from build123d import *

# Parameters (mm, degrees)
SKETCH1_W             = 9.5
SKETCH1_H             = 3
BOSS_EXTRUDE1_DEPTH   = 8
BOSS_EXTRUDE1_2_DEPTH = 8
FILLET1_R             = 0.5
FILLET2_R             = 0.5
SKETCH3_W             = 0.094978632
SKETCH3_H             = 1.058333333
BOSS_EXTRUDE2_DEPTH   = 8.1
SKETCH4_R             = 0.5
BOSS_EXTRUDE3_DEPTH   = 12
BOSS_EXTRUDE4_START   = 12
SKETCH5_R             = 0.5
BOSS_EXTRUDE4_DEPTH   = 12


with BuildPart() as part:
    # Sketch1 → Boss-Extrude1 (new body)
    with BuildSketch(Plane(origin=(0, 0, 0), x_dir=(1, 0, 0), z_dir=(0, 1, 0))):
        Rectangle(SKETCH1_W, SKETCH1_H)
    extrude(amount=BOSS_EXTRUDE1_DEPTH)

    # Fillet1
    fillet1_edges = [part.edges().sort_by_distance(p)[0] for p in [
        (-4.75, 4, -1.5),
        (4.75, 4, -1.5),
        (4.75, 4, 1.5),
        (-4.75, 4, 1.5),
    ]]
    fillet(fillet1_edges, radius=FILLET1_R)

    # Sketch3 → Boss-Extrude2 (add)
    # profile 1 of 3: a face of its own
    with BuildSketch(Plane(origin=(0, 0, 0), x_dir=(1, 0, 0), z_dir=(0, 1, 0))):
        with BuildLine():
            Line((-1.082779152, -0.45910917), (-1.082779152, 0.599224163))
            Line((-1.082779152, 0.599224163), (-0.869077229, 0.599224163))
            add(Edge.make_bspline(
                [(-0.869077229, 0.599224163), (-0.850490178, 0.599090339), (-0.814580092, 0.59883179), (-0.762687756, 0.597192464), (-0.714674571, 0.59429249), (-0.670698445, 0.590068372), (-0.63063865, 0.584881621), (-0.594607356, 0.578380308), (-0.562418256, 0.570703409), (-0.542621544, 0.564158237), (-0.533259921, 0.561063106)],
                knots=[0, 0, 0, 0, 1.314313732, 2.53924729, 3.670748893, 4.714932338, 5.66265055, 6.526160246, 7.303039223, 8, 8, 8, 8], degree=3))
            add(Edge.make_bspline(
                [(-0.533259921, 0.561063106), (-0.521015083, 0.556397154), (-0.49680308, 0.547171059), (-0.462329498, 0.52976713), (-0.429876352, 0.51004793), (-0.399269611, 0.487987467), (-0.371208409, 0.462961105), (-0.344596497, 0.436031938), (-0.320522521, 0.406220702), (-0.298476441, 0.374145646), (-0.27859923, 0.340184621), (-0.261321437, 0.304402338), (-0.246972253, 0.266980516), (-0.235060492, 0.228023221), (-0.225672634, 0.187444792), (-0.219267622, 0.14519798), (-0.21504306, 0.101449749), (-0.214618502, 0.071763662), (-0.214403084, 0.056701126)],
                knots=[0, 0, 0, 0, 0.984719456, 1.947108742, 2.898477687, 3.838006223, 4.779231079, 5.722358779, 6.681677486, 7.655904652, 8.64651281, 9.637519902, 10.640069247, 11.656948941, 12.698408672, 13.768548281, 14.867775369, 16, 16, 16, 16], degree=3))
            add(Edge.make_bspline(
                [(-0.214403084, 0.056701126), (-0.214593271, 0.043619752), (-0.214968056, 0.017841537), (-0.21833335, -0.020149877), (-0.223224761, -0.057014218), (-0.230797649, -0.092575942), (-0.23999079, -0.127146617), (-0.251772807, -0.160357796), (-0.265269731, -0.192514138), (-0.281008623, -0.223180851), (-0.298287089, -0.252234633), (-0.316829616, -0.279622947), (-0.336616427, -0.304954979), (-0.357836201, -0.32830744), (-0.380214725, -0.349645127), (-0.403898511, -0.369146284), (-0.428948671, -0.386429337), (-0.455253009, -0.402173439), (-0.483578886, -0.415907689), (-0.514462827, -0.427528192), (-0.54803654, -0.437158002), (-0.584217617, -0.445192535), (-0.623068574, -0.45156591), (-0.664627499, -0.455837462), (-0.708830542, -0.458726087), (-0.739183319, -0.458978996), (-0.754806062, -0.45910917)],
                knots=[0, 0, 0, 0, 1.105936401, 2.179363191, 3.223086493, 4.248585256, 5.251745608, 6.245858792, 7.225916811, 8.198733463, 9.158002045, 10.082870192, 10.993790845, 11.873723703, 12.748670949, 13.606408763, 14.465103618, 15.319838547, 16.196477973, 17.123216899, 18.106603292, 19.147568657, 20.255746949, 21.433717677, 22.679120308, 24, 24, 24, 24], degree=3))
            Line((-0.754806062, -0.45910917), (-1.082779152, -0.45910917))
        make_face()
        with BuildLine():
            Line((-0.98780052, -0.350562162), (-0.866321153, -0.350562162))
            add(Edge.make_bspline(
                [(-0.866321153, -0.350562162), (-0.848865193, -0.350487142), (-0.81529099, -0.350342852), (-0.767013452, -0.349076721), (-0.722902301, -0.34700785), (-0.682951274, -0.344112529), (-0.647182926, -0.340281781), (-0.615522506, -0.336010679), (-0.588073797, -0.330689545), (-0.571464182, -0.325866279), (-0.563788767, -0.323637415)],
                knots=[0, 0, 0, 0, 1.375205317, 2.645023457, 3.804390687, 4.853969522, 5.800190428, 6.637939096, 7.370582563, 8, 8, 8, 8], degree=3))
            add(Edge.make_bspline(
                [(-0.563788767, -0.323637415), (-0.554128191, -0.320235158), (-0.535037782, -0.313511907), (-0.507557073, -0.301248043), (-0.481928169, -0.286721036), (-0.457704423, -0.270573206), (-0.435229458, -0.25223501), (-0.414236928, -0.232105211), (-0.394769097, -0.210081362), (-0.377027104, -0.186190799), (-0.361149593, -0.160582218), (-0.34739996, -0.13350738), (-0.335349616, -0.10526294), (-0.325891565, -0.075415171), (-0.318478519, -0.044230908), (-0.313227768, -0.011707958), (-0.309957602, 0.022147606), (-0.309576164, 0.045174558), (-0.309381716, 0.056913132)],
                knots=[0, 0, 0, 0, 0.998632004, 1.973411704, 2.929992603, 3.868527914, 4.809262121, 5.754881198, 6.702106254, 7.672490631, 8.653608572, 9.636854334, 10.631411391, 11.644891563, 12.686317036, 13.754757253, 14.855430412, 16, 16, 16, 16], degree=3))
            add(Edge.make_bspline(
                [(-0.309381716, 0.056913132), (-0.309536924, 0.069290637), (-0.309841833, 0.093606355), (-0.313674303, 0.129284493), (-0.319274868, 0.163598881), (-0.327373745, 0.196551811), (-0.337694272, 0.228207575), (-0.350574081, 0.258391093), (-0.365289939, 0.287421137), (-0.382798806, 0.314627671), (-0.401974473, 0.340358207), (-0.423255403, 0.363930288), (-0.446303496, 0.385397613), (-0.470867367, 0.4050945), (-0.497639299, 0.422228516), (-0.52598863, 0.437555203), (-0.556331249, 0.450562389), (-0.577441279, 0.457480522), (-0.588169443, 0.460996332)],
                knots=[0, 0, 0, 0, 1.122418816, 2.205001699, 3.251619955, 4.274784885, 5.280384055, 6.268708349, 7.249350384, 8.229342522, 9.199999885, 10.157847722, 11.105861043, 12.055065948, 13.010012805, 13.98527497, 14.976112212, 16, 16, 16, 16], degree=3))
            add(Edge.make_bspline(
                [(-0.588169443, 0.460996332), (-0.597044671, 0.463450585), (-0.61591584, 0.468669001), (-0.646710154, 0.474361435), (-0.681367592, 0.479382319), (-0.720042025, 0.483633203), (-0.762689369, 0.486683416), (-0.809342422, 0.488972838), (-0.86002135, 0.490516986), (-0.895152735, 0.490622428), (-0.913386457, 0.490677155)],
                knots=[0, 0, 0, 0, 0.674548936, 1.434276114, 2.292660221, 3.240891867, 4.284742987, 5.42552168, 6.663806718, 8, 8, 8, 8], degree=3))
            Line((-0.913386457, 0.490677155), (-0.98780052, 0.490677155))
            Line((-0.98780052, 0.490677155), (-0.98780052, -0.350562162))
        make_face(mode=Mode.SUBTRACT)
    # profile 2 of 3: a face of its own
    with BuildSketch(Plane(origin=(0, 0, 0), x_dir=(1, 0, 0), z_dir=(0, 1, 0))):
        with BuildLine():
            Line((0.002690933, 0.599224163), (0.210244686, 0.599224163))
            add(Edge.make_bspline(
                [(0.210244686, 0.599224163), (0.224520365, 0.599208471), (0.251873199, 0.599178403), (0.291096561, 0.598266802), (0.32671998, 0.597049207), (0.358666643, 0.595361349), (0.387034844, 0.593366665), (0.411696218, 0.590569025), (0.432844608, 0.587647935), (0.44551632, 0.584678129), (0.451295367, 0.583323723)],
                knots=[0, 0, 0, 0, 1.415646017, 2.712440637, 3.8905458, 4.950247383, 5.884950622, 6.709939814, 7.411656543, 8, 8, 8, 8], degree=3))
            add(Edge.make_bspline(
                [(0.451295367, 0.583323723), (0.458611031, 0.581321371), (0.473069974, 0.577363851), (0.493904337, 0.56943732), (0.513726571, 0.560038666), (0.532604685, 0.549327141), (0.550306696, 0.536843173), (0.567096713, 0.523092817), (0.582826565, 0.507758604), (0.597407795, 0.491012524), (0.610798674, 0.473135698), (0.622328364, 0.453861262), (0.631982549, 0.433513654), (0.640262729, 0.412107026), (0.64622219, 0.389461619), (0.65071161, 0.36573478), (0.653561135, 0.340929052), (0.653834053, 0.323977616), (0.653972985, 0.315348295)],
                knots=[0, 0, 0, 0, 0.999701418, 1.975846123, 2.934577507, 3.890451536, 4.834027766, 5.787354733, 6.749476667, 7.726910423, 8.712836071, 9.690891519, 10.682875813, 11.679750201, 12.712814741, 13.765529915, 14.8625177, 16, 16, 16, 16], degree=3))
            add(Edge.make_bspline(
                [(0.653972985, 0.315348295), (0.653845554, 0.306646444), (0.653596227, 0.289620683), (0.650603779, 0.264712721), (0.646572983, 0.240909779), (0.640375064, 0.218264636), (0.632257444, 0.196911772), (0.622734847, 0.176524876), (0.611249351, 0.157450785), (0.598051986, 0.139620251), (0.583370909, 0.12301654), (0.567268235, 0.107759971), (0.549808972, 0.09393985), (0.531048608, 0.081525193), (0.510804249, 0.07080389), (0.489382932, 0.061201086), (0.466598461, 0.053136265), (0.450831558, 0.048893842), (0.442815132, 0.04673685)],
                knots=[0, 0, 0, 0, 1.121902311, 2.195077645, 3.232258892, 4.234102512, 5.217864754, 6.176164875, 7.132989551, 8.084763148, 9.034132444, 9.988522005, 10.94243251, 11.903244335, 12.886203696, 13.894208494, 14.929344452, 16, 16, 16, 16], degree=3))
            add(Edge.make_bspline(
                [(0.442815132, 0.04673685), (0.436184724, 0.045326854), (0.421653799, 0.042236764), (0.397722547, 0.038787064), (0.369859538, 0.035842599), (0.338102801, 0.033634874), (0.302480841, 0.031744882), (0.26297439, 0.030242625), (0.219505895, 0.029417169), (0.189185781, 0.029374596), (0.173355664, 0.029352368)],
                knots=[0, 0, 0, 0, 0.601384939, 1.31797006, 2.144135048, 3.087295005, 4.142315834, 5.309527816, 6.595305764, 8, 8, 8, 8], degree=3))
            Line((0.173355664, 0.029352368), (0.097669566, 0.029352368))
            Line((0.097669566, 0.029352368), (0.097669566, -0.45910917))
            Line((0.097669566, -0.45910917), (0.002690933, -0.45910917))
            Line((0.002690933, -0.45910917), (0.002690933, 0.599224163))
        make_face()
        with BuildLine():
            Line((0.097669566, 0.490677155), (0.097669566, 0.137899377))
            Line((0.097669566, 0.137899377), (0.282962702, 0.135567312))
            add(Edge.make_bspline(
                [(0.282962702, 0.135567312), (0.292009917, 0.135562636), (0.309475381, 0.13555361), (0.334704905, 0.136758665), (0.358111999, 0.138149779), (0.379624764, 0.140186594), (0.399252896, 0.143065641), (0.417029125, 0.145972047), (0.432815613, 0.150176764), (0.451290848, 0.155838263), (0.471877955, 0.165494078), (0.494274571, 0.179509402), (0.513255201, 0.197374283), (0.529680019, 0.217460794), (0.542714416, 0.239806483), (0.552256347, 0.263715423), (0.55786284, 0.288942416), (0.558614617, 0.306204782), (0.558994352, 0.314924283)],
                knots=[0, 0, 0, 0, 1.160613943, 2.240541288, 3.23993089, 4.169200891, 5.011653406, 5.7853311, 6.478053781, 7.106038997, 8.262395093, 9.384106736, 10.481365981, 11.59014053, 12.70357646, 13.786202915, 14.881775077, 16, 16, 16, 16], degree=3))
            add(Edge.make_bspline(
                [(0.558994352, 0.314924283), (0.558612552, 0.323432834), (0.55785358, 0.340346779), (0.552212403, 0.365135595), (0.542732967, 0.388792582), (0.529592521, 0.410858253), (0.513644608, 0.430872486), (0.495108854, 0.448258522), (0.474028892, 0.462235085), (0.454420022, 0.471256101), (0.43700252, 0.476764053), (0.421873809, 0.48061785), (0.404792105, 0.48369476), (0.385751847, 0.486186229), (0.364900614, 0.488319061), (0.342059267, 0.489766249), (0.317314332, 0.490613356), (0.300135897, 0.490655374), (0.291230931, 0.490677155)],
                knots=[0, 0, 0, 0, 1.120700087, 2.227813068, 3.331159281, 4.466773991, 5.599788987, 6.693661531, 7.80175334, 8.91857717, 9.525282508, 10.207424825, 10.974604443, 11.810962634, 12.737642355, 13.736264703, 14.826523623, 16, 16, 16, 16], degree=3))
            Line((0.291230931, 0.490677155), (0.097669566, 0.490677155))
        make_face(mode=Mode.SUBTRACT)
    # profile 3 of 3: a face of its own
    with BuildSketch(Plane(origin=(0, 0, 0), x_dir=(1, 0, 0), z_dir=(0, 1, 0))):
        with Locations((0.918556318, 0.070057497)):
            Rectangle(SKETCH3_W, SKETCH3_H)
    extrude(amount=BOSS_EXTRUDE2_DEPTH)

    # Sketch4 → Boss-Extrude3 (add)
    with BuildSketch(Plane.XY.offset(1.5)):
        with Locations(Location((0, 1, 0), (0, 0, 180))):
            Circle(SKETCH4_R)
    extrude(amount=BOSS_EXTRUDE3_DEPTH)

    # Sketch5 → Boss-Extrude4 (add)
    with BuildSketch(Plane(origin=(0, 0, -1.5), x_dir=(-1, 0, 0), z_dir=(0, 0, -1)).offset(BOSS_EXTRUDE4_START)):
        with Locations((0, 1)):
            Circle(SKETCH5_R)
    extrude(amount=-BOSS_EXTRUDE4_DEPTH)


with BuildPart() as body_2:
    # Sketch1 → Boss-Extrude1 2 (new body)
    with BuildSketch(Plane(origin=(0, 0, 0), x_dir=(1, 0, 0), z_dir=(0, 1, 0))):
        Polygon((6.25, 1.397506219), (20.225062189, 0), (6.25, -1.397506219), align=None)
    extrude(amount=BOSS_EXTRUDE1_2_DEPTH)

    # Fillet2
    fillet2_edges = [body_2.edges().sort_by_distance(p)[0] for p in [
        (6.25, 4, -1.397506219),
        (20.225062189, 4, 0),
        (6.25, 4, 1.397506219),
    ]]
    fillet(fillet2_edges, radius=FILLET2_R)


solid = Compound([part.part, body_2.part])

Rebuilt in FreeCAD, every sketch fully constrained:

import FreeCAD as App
import Part
import Sketcher

V = App.Vector


def edges_at(feature, points):
    """Names of the edges that pass closest to the given points."""
    edges = feature.Shape.Edges
    near = lambda p: min(range(len(edges)), key=lambda i: edges[i].distToShape(Part.Vertex(*p))[0])
    return sorted({f"Edge{near(p) + 1}" for p in points})


def add_polygon(sketch, points):
    """Adds a closed chain of lines whose ends are joined by coincident constraints."""
    first, n = sketch.GeometryCount, len(points)
    for a, b in zip(points, points[1:] + points[:1]):
        sketch.addGeometry(Part.LineSegment(App.Vector(*a, 0), App.Vector(*b, 0)), False)
    for i in range(n):
        sketch.addConstraint(Sketcher.Constraint("Coincident", first + i, 2, first + (i + 1) % n, 1))

doc = App.newDocument("Part")
body = doc.addObject("PartDesign::Body", "Body")

# Sketch on XZ plane
sketch1 = doc.addObject("Sketcher::SketchObject", "Sketch")
body.addObject(sketch1)
sketch1.AttachmentSupport = (doc.XZ_Plane, [""])
sketch1.MapMode = "FlatFace"
add_polygon(sketch1, [(-4.8, -1.5), (-4.8, 1.5), (4.8, 1.5), (4.8, -1.5)])  # lines 0-3
sketch1.addConstraint([
    Sketcher.Constraint("Vertical", 0),
    Sketcher.Constraint("Horizontal", 1),
    Sketcher.Constraint("Vertical", 2),
    Sketcher.Constraint("Horizontal", 3),
    Sketcher.Constraint("Symmetric", 0, 2, 2, 2, -1, 1),
    Sketcher.Constraint("DistanceY", 0, 1, 0, 2, 3.0),
    Sketcher.Constraint("DistanceX", 1, 1, 1, 2, 9.5),
])
pad1 = doc.addObject("PartDesign::Pad", "Pad")
body.addObject(pad1)
pad1.Profile = sketch1
pad1.Length = 8
pad1.Reversed = True
doc.recompute()

fillet = doc.addObject("PartDesign::Fillet", "Fillet")
body.addObject(fillet)
fillet.Base = (pad1, edges_at(pad1, [
    (-4.75, 4, -1.5),
    (4.75, 4, -1.5),
    (4.75, 4, 1.5),
    (-4.75, 4, 1.5),
]))
fillet.Radius = 0.5

# Sketch on XZ plane
sketch2 = doc.addObject("Sketcher::SketchObject", "Sketch001")
body.addObject(sketch2)
sketch2.AttachmentSupport = (doc.XZ_Plane, [""])
sketch2.MapMode = "FlatFace"
sketch2.addGeometry(Part.LineSegment(V(-1.082779, -0.599224, 0), V(-1.082779, 0.459109, 0)), False)  # 0
sketch2.addGeometry(Part.LineSegment(V(-1.082779, 0.459109, 0), V(-0.754806, 0.459109, 0)), False)  # 1
sketch2.addGeometry(Part.BSplineCurve([V(-0.214403, -0.056701, 0), V(-0.214593, -0.04362, 0), V(-0.214968, -0.017842, 0), V(-0.218333, 0.02015, 0), V(-0.223225, 0.057014, 0), V(-0.230798, 0.092576, 0), V(-0.239991, 0.127147, 0), V(-0.251773, 0.160358, 0), V(-0.26527, 0.192514, 0), V(-0.281009, 0.223181, 0), V(-0.298287, 0.252235, 0), V(-0.31683, 0.279623, 0), V(-0.336616, 0.304955, 0), V(-0.357836, 0.328307, 0), V(-0.380215, 0.349645, 0), V(-0.403899, 0.369146, 0), V(-0.428949, 0.386429, 0), V(-0.455253, 0.402173, 0), V(-0.483579, 0.415908, 0), V(-0.514463, 0.427528, 0), V(-0.548037, 0.437158, 0), V(-0.584218, 0.445193, 0), V(-0.623069, 0.451566, 0), V(-0.664627, 0.455837, 0), V(-0.708831, 0.458726, 0), V(-0.739183, 0.458979, 0), V(-0.754806, 0.459109, 0)], [4, 1, 1, 1, 1, 1, 1, 1, 1, 1, 1, 1, 1, 1, 1, 1, 1, 1, 1, 1, 1, 1, 1, 1, 4], [0, 1.105936401, 2.179363191, 3.223086493, 4.248585256, 5.251745608, 6.245858792, 7.225916811, 8.198733463, 9.158002045, 10.082870192, 10.993790845, 11.873723703, 12.748670949, 13.606408763, 14.465103618, 15.319838547, 16.196477973, 17.123216899, 18.106603292, 19.147568657, 20.255746949, 21.433717677, 22.679120308, 24], False, 3, [1, 1, 1, 1, 1, 1, 1, 1, 1, 1, 1, 1, 1, 1, 1, 1, 1, 1, 1, 1, 1, 1, 1, 1, 1, 1, 1], False), False)  # 2
sketch2.addGeometry(Part.BSplineCurve([V(-0.53326, -0.561063, 0), V(-0.521015, -0.556397, 0), V(-0.496803, -0.547171, 0), V(-0.462329, -0.529767, 0), V(-0.429876, -0.510048, 0), V(-0.39927, -0.487987, 0), V(-0.371208, -0.462961, 0), V(-0.344596, -0.436032, 0), V(-0.320523, -0.406221, 0), V(-0.298476, -0.374146, 0), V(-0.278599, -0.340185, 0), V(-0.261321, -0.304402, 0), V(-0.246972, -0.266981, 0), V(-0.23506, -0.228023, 0), V(-0.225673, -0.187445, 0), V(-0.219268, -0.145198, 0), V(-0.215043, -0.10145, 0), V(-0.214619, -0.071764, 0), V(-0.214403, -0.056701, 0)], [4, 1, 1, 1, 1, 1, 1, 1, 1, 1, 1, 1, 1, 1, 1, 1, 4], [0, 0.984719456, 1.947108742, 2.898477687, 3.838006223, 4.779231079, 5.722358779, 6.681677486, 7.655904652, 8.64651281, 9.637519902, 10.640069247, 11.656948941, 12.698408672, 13.768548281, 14.867775369, 16], False, 3, [1, 1, 1, 1, 1, 1, 1, 1, 1, 1, 1, 1, 1, 1, 1, 1, 1, 1, 1], False), False)  # 3
sketch2.addGeometry(Part.BSplineCurve([V(-0.869077, -0.599224, 0), V(-0.85049, -0.59909, 0), V(-0.81458, -0.598832, 0), V(-0.762688, -0.597192, 0), V(-0.714675, -0.594292, 0), V(-0.670698, -0.590068, 0), V(-0.630639, -0.584882, 0), V(-0.594607, -0.57838, 0), V(-0.562418, -0.570703, 0), V(-0.542622, -0.564158, 0), V(-0.53326, -0.561063, 0)], [4, 1, 1, 1, 1, 1, 1, 1, 4], [0, 1.314313732, 2.53924729, 3.670748893, 4.714932338, 5.66265055, 6.526160246, 7.303039223, 8], False, 3, [1, 1, 1, 1, 1, 1, 1, 1, 1, 1, 1], False), False)  # 4
sketch2.addGeometry(Part.LineSegment(V(-0.869077, -0.599224, 0), V(-1.082779, -0.599224, 0)), False)  # 5
sketch2.addGeometry(Part.LineSegment(V(-0.987801, 0.350562, 0), V(-0.987801, -0.490677, 0)), False)  # 6
sketch2.addGeometry(Part.LineSegment(V(-0.987801, -0.490677, 0), V(-0.913386, -0.490677, 0)), False)  # 7
sketch2.addGeometry(Part.BSplineCurve([V(-0.588169, -0.460996, 0), V(-0.597045, -0.463451, 0), V(-0.615916, -0.468669, 0), V(-0.64671, -0.474361, 0), V(-0.681368, -0.479382, 0), V(-0.720042, -0.483633, 0), V(-0.762689, -0.486683, 0), V(-0.809342, -0.488973, 0), V(-0.860021, -0.490517, 0), V(-0.895153, -0.490622, 0), V(-0.913386, -0.490677, 0)], [4, 1, 1, 1, 1, 1, 1, 1, 4], [0, 0.674548936, 1.434276114, 2.292660221, 3.240891867, 4.284742987, 5.42552168, 6.663806718, 8], False, 3, [1, 1, 1, 1, 1, 1, 1, 1, 1, 1, 1], False), False)  # 8
sketch2.addGeometry(Part.BSplineCurve([V(-0.309382, -0.056913, 0), V(-0.309537, -0.069291, 0), V(-0.309842, -0.093606, 0), V(-0.313674, -0.129284, 0), V(-0.319275, -0.163599, 0), V(-0.327374, -0.196552, 0), V(-0.337694, -0.228208, 0), V(-0.350574, -0.258391, 0), V(-0.36529, -0.287421, 0), V(-0.382799, -0.314628, 0), V(-0.401974, -0.340358, 0), V(-0.423255, -0.36393, 0), V(-0.446303, -0.385398, 0), V(-0.470867, -0.405095, 0), V(-0.497639, -0.422229, 0), V(-0.525989, -0.437555, 0), V(-0.556331, -0.450562, 0), V(-0.577441, -0.457481, 0), V(-0.588169, -0.460996, 0)], [4, 1, 1, 1, 1, 1, 1, 1, 1, 1, 1, 1, 1, 1, 1, 1, 4], [0, 1.122418816, 2.205001699, 3.251619955, 4.274784885, 5.280384055, 6.268708349, 7.249350384, 8.229342522, 9.199999885, 10.157847722, 11.105861043, 12.055065948, 13.010012805, 13.98527497, 14.976112212, 16], False, 3, [1, 1, 1, 1, 1, 1, 1, 1, 1, 1, 1, 1, 1, 1, 1, 1, 1, 1, 1], False), False)  # 9
sketch2.addGeometry(Part.BSplineCurve([V(-0.563789, 0.323637, 0), V(-0.554128, 0.320235, 0), V(-0.535038, 0.313512, 0), V(-0.507557, 0.301248, 0), V(-0.481928, 0.286721, 0), V(-0.457704, 0.270573, 0), V(-0.435229, 0.252235, 0), V(-0.414237, 0.232105, 0), V(-0.394769, 0.210081, 0), V(-0.377027, 0.186191, 0), V(-0.36115, 0.160582, 0), V(-0.3474, 0.133507, 0), V(-0.33535, 0.105263, 0), V(-0.325892, 0.075415, 0), V(-0.318479, 0.044231, 0), V(-0.313228, 0.011708, 0), V(-0.309958, -0.022148, 0), V(-0.309576, -0.045175, 0), V(-0.309382, -0.056913, 0)], [4, 1, 1, 1, 1, 1, 1, 1, 1, 1, 1, 1, 1, 1, 1, 1, 4], [0, 0.998632004, 1.973411704, 2.929992603, 3.868527914, 4.809262121, 5.754881198, 6.702106254, 7.672490631, 8.653608572, 9.636854334, 10.631411391, 11.644891563, 12.686317036, 13.754757253, 14.855430412, 16], False, 3, [1, 1, 1, 1, 1, 1, 1, 1, 1, 1, 1, 1, 1, 1, 1, 1, 1, 1, 1], False), False)  # 10
sketch2.addGeometry(Part.BSplineCurve([V(-0.866321, 0.350562, 0), V(-0.848865, 0.350487, 0), V(-0.815291, 0.350343, 0), V(-0.767013, 0.349077, 0), V(-0.722902, 0.347008, 0), V(-0.682951, 0.344113, 0), V(-0.647183, 0.340282, 0), V(-0.615523, 0.336011, 0), V(-0.588074, 0.33069, 0), V(-0.571464, 0.325866, 0), V(-0.563789, 0.323637, 0)], [4, 1, 1, 1, 1, 1, 1, 1, 4], [0, 1.375205317, 2.645023457, 3.804390687, 4.853969522, 5.800190428, 6.637939096, 7.370582563, 8], False, 3, [1, 1, 1, 1, 1, 1, 1, 1, 1, 1, 1], False), False)  # 11
sketch2.addGeometry(Part.LineSegment(V(-0.866321, 0.350562, 0), V(-0.987801, 0.350562, 0)), False)  # 12
sketch2.addGeometry(Part.LineSegment(V(0.210245, -0.599224, 0), V(0.002691, -0.599224, 0)), False)  # 13
sketch2.addGeometry(Part.LineSegment(V(0.002691, -0.599224, 0), V(0.002691, 0.459109, 0)), False)  # 14
sketch2.addGeometry(Part.LineSegment(V(0.002691, 0.459109, 0), V(0.09767, 0.459109, 0)), False)  # 15
sketch2.addGeometry(Part.LineSegment(V(0.09767, 0.459109, 0), V(0.09767, -0.029352, 0)), False)  # 16
sketch2.addGeometry(Part.LineSegment(V(0.09767, -0.029352, 0), V(0.173356, -0.029352, 0)), False)  # 17
sketch2.addGeometry(Part.BSplineCurve([V(0.442815, -0.046737, 0), V(0.436185, -0.045327, 0), V(0.421654, -0.042237, 0), V(0.397723, -0.038787, 0), V(0.36986, -0.035843, 0), V(0.338103, -0.033635, 0), V(0.302481, -0.031745, 0), V(0.262974, -0.030243, 0), V(0.219506, -0.029417, 0), V(0.189186, -0.029375, 0), V(0.173356, -0.029352, 0)], [4, 1, 1, 1, 1, 1, 1, 1, 4], [0, 0.601384939, 1.31797006, 2.144135048, 3.087295005, 4.142315834, 5.309527816, 6.595305764, 8], False, 3, [1, 1, 1, 1, 1, 1, 1, 1, 1, 1, 1], False), False)  # 18
sketch2.addGeometry(Part.BSplineCurve([V(0.653973, -0.315348, 0), V(0.653846, -0.306646, 0), V(0.653596, -0.289621, 0), V(0.650604, -0.264713, 0), V(0.646573, -0.24091, 0), V(0.640375, -0.218265, 0), V(0.632257, -0.196912, 0), V(0.622735, -0.176525, 0), V(0.611249, -0.157451, 0), V(0.598052, -0.13962, 0), V(0.583371, -0.123017, 0), V(0.567268, -0.10776, 0), V(0.549809, -0.09394, 0), V(0.531049, -0.081525, 0), V(0.510804, -0.070804, 0), V(0.489383, -0.061201, 0), V(0.466598, -0.053136, 0), V(0.450832, -0.048894, 0), V(0.442815, -0.046737, 0)], [4, 1, 1, 1, 1, 1, 1, 1, 1, 1, 1, 1, 1, 1, 1, 1, 4], [0, 1.121902311, 2.195077645, 3.232258892, 4.234102512, 5.217864754, 6.176164875, 7.132989551, 8.084763148, 9.034132444, 9.988522005, 10.94243251, 11.903244335, 12.886203696, 13.894208494, 14.929344452, 16], False, 3, [1, 1, 1, 1, 1, 1, 1, 1, 1, 1, 1, 1, 1, 1, 1, 1, 1, 1, 1], False), False)  # 19
sketch2.addGeometry(Part.BSplineCurve([V(0.451295, -0.583324, 0), V(0.458611, -0.581321, 0), V(0.47307, -0.577364, 0), V(0.493904, -0.569437, 0), V(0.513727, -0.560039, 0), V(0.532605, -0.549327, 0), V(0.550307, -0.536843, 0), V(0.567097, -0.523093, 0), V(0.582827, -0.507759, 0), V(0.597408, -0.491013, 0), V(0.610799, -0.473136, 0), V(0.622328, -0.453861, 0), V(0.631983, -0.433514, 0), V(0.640263, -0.412107, 0), V(0.646222, -0.389462, 0), V(0.650712, -0.365735, 0), V(0.653561, -0.340929, 0), V(0.653834, -0.323978, 0), V(0.653973, -0.315348, 0)], [4, 1, 1, 1, 1, 1, 1, 1, 1, 1, 1, 1, 1, 1, 1, 1, 4], [0, 0.999701418, 1.975846123, 2.934577507, 3.890451536, 4.834027766, 5.787354733, 6.749476667, 7.726910423, 8.712836071, 9.690891519, 10.682875813, 11.679750201, 12.712814741, 13.765529915, 14.8625177, 16], False, 3, [1, 1, 1, 1, 1, 1, 1, 1, 1, 1, 1, 1, 1, 1, 1, 1, 1, 1, 1], False), False)  # 20
sketch2.addGeometry(Part.BSplineCurve([V(0.210245, -0.599224, 0), V(0.22452, -0.599208, 0), V(0.251873, -0.599178, 0), V(0.291097, -0.598267, 0), V(0.32672, -0.597049, 0), V(0.358667, -0.595361, 0), V(0.387035, -0.593367, 0), V(0.411696, -0.590569, 0), V(0.432845, -0.587648, 0), V(0.445516, -0.584678, 0), V(0.451295, -0.583324, 0)], [4, 1, 1, 1, 1, 1, 1, 1, 4], [0, 1.415646017, 2.712440637, 3.8905458, 4.950247383, 5.884950622, 6.709939814, 7.411656543, 8], False, 3, [1, 1, 1, 1, 1, 1, 1, 1, 1, 1, 1], False), False)  # 21
sketch2.addGeometry(Part.LineSegment(V(0.09767, -0.490677, 0), V(0.291231, -0.490677, 0)), False)  # 22
sketch2.addGeometry(Part.BSplineCurve([V(0.558994, -0.314924, 0), V(0.558613, -0.323433, 0), V(0.557854, -0.340347, 0), V(0.552212, -0.365136, 0), V(0.542733, -0.388793, 0), V(0.529593, -0.410858, 0), V(0.513645, -0.430872, 0), V(0.495109, -0.448259, 0), V(0.474029, -0.462235, 0), V(0.45442, -0.471256, 0), V(0.437003, -0.476764, 0), V(0.421874, -0.480618, 0), V(0.404792, -0.483695, 0), V(0.385752, -0.486186, 0), V(0.364901, -0.488319, 0), V(0.342059, -0.489766, 0), V(0.317314, -0.490613, 0), V(0.300136, -0.490655, 0), V(0.291231, -0.490677, 0)], [4, 1, 1, 1, 1, 1, 1, 1, 1, 1, 1, 1, 1, 1, 1, 1, 4], [0, 1.120700087, 2.227813068, 3.331159281, 4.466773991, 5.599788987, 6.693661531, 7.80175334, 8.91857717, 9.525282508, 10.207424825, 10.974604443, 11.810962634, 12.737642355, 13.736264703, 14.826523623, 16], False, 3, [1, 1, 1, 1, 1, 1, 1, 1, 1, 1, 1, 1, 1, 1, 1, 1, 1, 1, 1], False), False)  # 23
sketch2.addGeometry(Part.BSplineCurve([V(0.282963, -0.135567, 0), V(0.29201, -0.135563, 0), V(0.309475, -0.135554, 0), V(0.334705, -0.136759, 0), V(0.358112, -0.13815, 0), V(0.379625, -0.140187, 0), V(0.399253, -0.143066, 0), V(0.417029, -0.145972, 0), V(0.432816, -0.150177, 0), V(0.451291, -0.155838, 0), V(0.471878, -0.165494, 0), V(0.494275, -0.179509, 0), V(0.513255, -0.197374, 0), V(0.52968, -0.217461, 0), V(0.542714, -0.239806, 0), V(0.552256, -0.263715, 0), V(0.557863, -0.288942, 0), V(0.558615, -0.306205, 0), V(0.558994, -0.314924, 0)], [4, 1, 1, 1, 1, 1, 1, 1, 1, 1, 1, 1, 1, 1, 1, 1, 4], [0, 1.160613943, 2.240541288, 3.23993089, 4.169200891, 5.011653406, 5.7853311, 6.478053781, 7.106038997, 8.262395093, 9.384106736, 10.481365981, 11.59014053, 12.70357646, 13.786202915, 14.881775077, 16], False, 3, [1, 1, 1, 1, 1, 1, 1, 1, 1, 1, 1, 1, 1, 1, 1, 1, 1, 1, 1], False), False)  # 24
sketch2.addGeometry(Part.LineSegment(V(0.282963, -0.135567, 0), V(0.09767, -0.137899, 0)), False)  # 25
sketch2.addGeometry(Part.LineSegment(V(0.09767, -0.137899, 0), V(0.09767, -0.490677, 0)), False)  # 26
add_polygon(sketch2, [(0.871067, -0.599224), (0.871067, 0.459109), (0.966046, 0.459109), (0.966046, -0.599224)])  # lines 27-30
sketch2.addConstraint([
    Sketcher.Constraint("Block", 2),
    Sketcher.Constraint("Block", 3),
    Sketcher.Constraint("Block", 4),
    Sketcher.Constraint("Block", 8),
    Sketcher.Constraint("Block", 9),
    Sketcher.Constraint("Block", 10),
    Sketcher.Constraint("Block", 11),
    Sketcher.Constraint("Block", 18),
    Sketcher.Constraint("Block", 19),
    Sketcher.Constraint("Block", 20),
    Sketcher.Constraint("Block", 21),
    Sketcher.Constraint("Block", 23),
    Sketcher.Constraint("Block", 24),
    Sketcher.Constraint("Coincident", 0, 2, 1, 1),
    Sketcher.Constraint("Coincident", 1, 2, 2, 2),
    Sketcher.Constraint("Coincident", 4, 1, 5, 1),
    Sketcher.Constraint("Coincident", 5, 2, 0, 1),
    Sketcher.Constraint("Coincident", 6, 2, 7, 1),
    Sketcher.Constraint("Coincident", 7, 2, 8, 2),
    Sketcher.Constraint("Coincident", 11, 1, 12, 1),
    Sketcher.Constraint("Coincident", 12, 2, 6, 1),
    Sketcher.Constraint("Coincident", 13, 2, 14, 1),
    Sketcher.Constraint("Coincident", 14, 2, 15, 1),
    Sketcher.Constraint("Coincident", 15, 2, 16, 1),
    Sketcher.Constraint("Coincident", 16, 2, 17, 1),
    Sketcher.Constraint("Coincident", 17, 2, 18, 2),
    Sketcher.Constraint("Coincident", 21, 1, 13, 1),
    Sketcher.Constraint("Coincident", 22, 2, 23, 2),
    Sketcher.Constraint("Coincident", 24, 1, 25, 1),
    Sketcher.Constraint("Coincident", 25, 2, 26, 1),
    Sketcher.Constraint("Coincident", 26, 2, 22, 1),
    Sketcher.Constraint("Vertical", 0),
    Sketcher.Constraint("Horizontal", 1),
    Sketcher.Constraint("Horizontal", 5),
    Sketcher.Constraint("Vertical", 6),
    Sketcher.Constraint("Horizontal", 7),
    Sketcher.Constraint("Horizontal", 12),
    Sketcher.Constraint("Horizontal", 13),
    Sketcher.Constraint("Vertical", 14),
    Sketcher.Constraint("Horizontal", 15),
    Sketcher.Constraint("Vertical", 16),
    Sketcher.Constraint("Horizontal", 17),
    Sketcher.Constraint("Horizontal", 22),
    Sketcher.Constraint("Vertical", 26),
    Sketcher.Constraint("Vertical", 27),
    Sketcher.Constraint("Horizontal", 28),
    Sketcher.Constraint("Vertical", 29),
    Sketcher.Constraint("Horizontal", 30),
    Sketcher.Constraint("Horizontal", 1, 2, 14, 2),
    Sketcher.Constraint("Horizontal", 15, 2, 27, 2),
    Sketcher.Constraint("Horizontal", 13, 2, 29, 2),
    Sketcher.Constraint("Vertical", 16, 2, 25, 2),
    Sketcher.Constraint("Equal", 15, 28),
    Sketcher.Constraint("DistanceX", 5, 2, 5, 1, 0.213702),
    Sketcher.Constraint("DistanceX", 12, 2, 12, 1, 0.121479),
    Sketcher.Constraint("DistanceX", 15, 1, 15, 2, 0.094979),
    Sketcher.Constraint("DistanceX", 22, 1, 22, 2, 0.193561),
    Sketcher.Constraint("DistanceY", 25, 2, -1, 1, 0.137899),
    Sketcher.Constraint("DistanceX", 17, 2, 27, 2, 0.697711),
])
pad2 = doc.addObject("PartDesign::Pad", "Pad001")
body.addObject(pad2)
pad2.Profile = sketch2
pad2.Length = 8.1
pad2.Reversed = True

# Sketch on XY plane
sketch3 = doc.addObject("Sketcher::SketchObject", "Sketch002")
body.addObject(sketch3)
sketch3.AttachmentSupport = (doc.XY_Plane, [""])
sketch3.MapMode = "FlatFace"
sketch3.AttachmentOffset = App.Placement(V(0, 0, 1.5), App.Rotation())
sketch3.addGeometry(Part.Circle(V(0, 1, 0), V(0, 0, 1), 0.5), False)
sketch3.addConstraint([
    Sketcher.Constraint("PointOnObject", 0, 3, -2),
    Sketcher.Constraint("Diameter", 0, 1.0),
    Sketcher.Constraint("DistanceY", -1, 1, 0, 3, 1.0),
])
pad3 = doc.addObject("PartDesign::Pad", "Pad002")
body.addObject(pad3)
pad3.Profile = sketch3
pad3.Length = 12

# Sketch on XY plane
sketch4 = doc.addObject("Sketcher::SketchObject", "Sketch003")
body.addObject(sketch4)
sketch4.AttachmentSupport = (doc.XY_Plane, [""])
sketch4.MapMode = "FlatFace"
sketch4.AttachmentOffset = App.Placement(V(0, 0, -13.5), App.Rotation())
sketch4.addGeometry(Part.Circle(V(0, 1, 0), V(0, 0, 1), 0.5), False)
sketch4.addConstraint([
    Sketcher.Constraint("PointOnObject", 0, 3, -2),
    Sketcher.Constraint("Diameter", 0, 1.0),
    Sketcher.Constraint("DistanceY", -1, 1, 0, 3, 1.0),
])
pad4 = doc.addObject("PartDesign::Pad", "Pad003")
body.addObject(pad4)
pad4.Profile = sketch4
pad4.Length = 12
body2 = doc.addObject("PartDesign::Body", "Body001")

# Sketch on XZ plane
sketch5 = doc.addObject("Sketcher::SketchObject", "Sketch004")
body2.addObject(sketch5)
sketch5.AttachmentSupport = (doc.getObject("XZ_Plane001"), [""])
sketch5.MapMode = "FlatFace"
add_polygon(sketch5, [(20.2, 0), (6.2, -1.4), (6.2, 1.4)])  # lines 0-2
sketch5.addConstraint([
    Sketcher.Constraint("Vertical", 1),
    Sketcher.Constraint("PointOnObject", 2, 2, -1),
    Sketcher.Constraint("Equal", 0, 2),
    Sketcher.Constraint("DistanceX", -1, 1, 0, 2, 6.25),
    Sketcher.Constraint("DistanceY", 1, 1, 1, 2, 2.795012),
    Sketcher.Constraint("Distance", 0, 14.044764),
])
pad5 = doc.addObject("PartDesign::Pad", "Pad004")
body2.addObject(pad5)
pad5.Profile = sketch5
pad5.Length = 8
pad5.Reversed = True
doc.recompute()

fillet2 = doc.addObject("PartDesign::Fillet", "Fillet001")
body2.addObject(fillet2)
fillet2.Base = (pad5, edges_at(pad5, [(6.25, 4, -1.398), (20.225, 4, 0), (6.25, 4, 1.398)]))
fillet2.Radius = 0.5

doc.recompute()
